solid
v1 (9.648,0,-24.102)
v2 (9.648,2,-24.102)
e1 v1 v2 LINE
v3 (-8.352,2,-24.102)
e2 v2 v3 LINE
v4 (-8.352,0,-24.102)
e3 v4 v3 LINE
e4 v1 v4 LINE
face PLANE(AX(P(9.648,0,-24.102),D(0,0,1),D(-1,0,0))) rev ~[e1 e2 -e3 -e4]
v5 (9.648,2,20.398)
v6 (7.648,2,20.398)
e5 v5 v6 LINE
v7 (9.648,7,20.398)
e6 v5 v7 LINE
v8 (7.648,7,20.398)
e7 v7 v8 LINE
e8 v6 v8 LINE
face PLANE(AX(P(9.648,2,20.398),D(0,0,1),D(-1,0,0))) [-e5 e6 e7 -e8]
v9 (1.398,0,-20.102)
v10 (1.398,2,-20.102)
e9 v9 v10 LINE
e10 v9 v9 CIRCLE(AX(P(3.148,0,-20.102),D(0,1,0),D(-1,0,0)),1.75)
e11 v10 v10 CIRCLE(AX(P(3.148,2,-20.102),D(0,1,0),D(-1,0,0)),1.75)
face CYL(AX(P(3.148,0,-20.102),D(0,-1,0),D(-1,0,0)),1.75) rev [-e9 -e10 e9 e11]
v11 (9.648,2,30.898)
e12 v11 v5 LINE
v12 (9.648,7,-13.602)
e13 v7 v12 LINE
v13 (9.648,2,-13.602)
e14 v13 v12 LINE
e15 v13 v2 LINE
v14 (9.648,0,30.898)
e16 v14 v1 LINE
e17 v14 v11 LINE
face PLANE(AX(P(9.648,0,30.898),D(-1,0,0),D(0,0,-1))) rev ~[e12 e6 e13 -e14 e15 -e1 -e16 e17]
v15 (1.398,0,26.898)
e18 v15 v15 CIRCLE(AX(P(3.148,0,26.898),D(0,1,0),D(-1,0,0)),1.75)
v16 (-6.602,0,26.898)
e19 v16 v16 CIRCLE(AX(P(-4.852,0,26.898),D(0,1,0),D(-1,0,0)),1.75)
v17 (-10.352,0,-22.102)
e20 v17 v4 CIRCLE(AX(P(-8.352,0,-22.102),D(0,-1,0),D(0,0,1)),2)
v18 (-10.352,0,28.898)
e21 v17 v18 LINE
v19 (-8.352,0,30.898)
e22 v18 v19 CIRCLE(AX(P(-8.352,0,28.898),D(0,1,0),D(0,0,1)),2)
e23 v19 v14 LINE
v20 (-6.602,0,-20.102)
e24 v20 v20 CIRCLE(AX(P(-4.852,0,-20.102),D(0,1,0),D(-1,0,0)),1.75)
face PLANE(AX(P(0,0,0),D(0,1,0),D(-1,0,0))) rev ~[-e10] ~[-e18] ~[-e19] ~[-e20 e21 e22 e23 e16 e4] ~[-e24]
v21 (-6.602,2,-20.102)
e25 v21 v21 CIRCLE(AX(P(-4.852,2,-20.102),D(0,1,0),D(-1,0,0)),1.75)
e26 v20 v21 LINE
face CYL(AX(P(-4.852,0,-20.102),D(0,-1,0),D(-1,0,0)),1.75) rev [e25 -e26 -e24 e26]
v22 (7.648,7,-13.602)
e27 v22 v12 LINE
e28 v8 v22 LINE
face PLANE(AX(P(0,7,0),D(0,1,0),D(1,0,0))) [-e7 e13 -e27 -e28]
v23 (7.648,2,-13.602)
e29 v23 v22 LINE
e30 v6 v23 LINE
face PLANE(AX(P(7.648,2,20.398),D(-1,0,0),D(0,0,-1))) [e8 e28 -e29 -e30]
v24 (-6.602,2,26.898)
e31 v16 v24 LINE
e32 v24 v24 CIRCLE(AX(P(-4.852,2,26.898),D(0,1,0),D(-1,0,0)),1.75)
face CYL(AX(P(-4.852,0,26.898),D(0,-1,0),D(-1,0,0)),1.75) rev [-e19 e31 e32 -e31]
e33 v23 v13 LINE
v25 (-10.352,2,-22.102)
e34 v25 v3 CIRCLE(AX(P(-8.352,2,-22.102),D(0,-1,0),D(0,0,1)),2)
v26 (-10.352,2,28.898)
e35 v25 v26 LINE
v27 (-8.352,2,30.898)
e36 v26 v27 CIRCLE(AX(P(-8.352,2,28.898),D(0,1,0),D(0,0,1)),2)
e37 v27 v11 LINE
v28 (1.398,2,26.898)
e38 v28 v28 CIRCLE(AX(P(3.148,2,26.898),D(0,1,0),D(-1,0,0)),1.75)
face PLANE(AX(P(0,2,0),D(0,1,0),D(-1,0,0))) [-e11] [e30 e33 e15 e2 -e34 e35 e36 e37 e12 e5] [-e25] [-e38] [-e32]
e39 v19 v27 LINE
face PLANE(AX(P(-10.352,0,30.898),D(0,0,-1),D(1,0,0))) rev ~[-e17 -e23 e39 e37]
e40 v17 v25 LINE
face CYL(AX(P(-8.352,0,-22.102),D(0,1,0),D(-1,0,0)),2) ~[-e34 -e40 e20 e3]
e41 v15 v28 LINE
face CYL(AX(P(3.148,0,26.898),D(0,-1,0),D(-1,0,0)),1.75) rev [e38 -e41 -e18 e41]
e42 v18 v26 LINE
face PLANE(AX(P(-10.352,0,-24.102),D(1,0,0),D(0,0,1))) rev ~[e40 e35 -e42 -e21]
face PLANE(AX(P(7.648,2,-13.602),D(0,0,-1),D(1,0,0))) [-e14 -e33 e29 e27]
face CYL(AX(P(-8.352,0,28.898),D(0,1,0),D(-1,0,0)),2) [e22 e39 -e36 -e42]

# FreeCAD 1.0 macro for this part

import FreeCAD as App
import Part
import Sketcher

V = App.Vector
Q = App.Units.Quantity


def edges_at(feature, points):
    """Names of the edges that pass closest to the given points."""
    edges = feature.Shape.Edges
    near = lambda p: min(range(len(edges)), key=lambda i: edges[i].distToShape(Part.Vertex(*p))[0])
    return sorted({f"Edge{near(p) + 1}" for p in points})


def add_polygon(sketch, points):
    """Adds a closed chain of lines whose ends are joined by coincident constraints."""
    first, n = sketch.GeometryCount, len(points)
    for a, b in zip(points, points[1:] + points[:1]):
        sketch.addGeometry(Part.LineSegment(App.Vector(*a, 0), App.Vector(*b, 0)), False)
    for i in range(n):
        sketch.addConstraint(Sketcher.Constraint("Coincident", first + i, 2, first + (i + 1) % n, 1))

doc = App.newDocument("Part")
body = doc.addObject("PartDesign::Body", "Body")

sketch1 = body.newObject("Sketcher::SketchObject", "Sketch")
sketch1.AttachmentSupport = (doc.getObject("XZ_Plane"), [""])
sketch1.MapMode = "FlatFace"
add_polygon(sketch1, [(-10.4, -24.1), (-10.4, 30.9), (9.6, 30.9), (9.6, -24.1)])
sketch1.addGeometry(Part.Circle(V(3.1, -20.1, 0), V(0, 0, 1), 1.8), False)
sketch1.addGeometry(Part.Circle(V(-4.9, -20.1, 0), V(0, 0, 1), 1.8), False)
sketch1.addGeometry(Part.Circle(V(3.1, 26.9, 0), V(0, 0, 1), 1.8), False)
sketch1.addGeometry(Part.Circle(V(-4.9, 26.9, 0), V(0, 0, 1), 1.8), False)
sketch1.addConstraint([
    Sketcher.Constraint("Vertical", 0),
    Sketcher.Constraint("Horizontal", 1),
    Sketcher.Constraint("Vertical", 2),
    Sketcher.Constraint("Horizontal", 3),
    Sketcher.Constraint("Equal", 4, 5),
    Sketcher.Constraint("Equal", 5, 6),
    Sketcher.Constraint("Equal", 6, 7),
    Sketcher.Constraint("Horizontal", 4, 3, 5, 3),
    Sketcher.Constraint("Horizontal", 6, 3, 7, 3),
    Sketcher.Constraint("Vertical", 4, 3, 6, 3),
    Sketcher.Constraint("Vertical", 5, 3, 7, 3),
    Sketcher.Constraint("Diameter", 4, Q("3.5 mm")),
    Sketcher.Constraint("DistanceX", 1, 1, 1, 2, Q("20 mm")),
    Sketcher.Constraint("DistanceY", 0, 1, 0, 2, Q("55 mm")),
    Sketcher.Constraint("DistanceX", 5, 3, 4, 3, Q("8 mm")),
    Sketcher.Constraint("DistanceY", 7, 3, 0, 2, Q("4 mm")),
    Sketcher.Constraint("DistanceY", 2, 2, 4, 3, Q("4 mm")),
    Sketcher.Constraint("DistanceX", 0, 2, 7, 3, Q("5.5 mm")),
    Sketcher.Constraint("DistanceX", -1, 1, 4, 3, Q("3.148 mm")),
    Sketcher.Constraint("DistanceY", 4, 3, -1, 1, Q("20.102 mm")),
])
pad1 = body.newObject("PartDesign::Pad", "Pad")
pad1.Profile = sketch1
pad1.Length = 2
pad1.Reversed = True

sketch2 = body.newObject("Sketcher::SketchObject", "Sketch001")
sketch2.AttachmentSupport = (doc.getObject("XZ_Plane"), [""])
sketch2.MapMode = "FlatFace"
sketch2.AttachmentOffset = App.Placement(V(0, 0, -2), App.Rotation())
add_polygon(sketch2, [(7.6, 20.4), (9.6, 20.4), (9.6, -13.6), (7.6, -13.6)])
sketch2.addConstraint([
    Sketcher.Constraint("Horizontal", 0),
    Sketcher.Constraint("Vertical", 1),
    Sketcher.Constraint("Horizontal", 2),
    Sketcher.Constraint("Vertical", 3),
    Sketcher.Constraint("DistanceX", 0, 1, 0, 2, Q("2 mm")),
    Sketcher.Constraint("DistanceY", 1, 2, 1, 1, Q("34 mm")),
    Sketcher.Constraint("DistanceX", -1, 1, 0, 2, Q("9.648 mm")),
    Sketcher.Constraint("DistanceY", -1, 1, 0, 2, Q("20.398 mm")),
])
pad2 = body.newObject("PartDesign::Pad", "Pad001")
pad2.Profile = sketch2
pad2.Length = 5
pad2.Reversed = True
doc.recompute()

fillet = body.newObject("PartDesign::Fillet", "Fillet")
fillet.Base = (pad2, edges_at(pad2, [(-10.352, 1, 30.898), (-10.352, 1, -24.102)]))
fillet.Radius = 2

doc.recompute()
